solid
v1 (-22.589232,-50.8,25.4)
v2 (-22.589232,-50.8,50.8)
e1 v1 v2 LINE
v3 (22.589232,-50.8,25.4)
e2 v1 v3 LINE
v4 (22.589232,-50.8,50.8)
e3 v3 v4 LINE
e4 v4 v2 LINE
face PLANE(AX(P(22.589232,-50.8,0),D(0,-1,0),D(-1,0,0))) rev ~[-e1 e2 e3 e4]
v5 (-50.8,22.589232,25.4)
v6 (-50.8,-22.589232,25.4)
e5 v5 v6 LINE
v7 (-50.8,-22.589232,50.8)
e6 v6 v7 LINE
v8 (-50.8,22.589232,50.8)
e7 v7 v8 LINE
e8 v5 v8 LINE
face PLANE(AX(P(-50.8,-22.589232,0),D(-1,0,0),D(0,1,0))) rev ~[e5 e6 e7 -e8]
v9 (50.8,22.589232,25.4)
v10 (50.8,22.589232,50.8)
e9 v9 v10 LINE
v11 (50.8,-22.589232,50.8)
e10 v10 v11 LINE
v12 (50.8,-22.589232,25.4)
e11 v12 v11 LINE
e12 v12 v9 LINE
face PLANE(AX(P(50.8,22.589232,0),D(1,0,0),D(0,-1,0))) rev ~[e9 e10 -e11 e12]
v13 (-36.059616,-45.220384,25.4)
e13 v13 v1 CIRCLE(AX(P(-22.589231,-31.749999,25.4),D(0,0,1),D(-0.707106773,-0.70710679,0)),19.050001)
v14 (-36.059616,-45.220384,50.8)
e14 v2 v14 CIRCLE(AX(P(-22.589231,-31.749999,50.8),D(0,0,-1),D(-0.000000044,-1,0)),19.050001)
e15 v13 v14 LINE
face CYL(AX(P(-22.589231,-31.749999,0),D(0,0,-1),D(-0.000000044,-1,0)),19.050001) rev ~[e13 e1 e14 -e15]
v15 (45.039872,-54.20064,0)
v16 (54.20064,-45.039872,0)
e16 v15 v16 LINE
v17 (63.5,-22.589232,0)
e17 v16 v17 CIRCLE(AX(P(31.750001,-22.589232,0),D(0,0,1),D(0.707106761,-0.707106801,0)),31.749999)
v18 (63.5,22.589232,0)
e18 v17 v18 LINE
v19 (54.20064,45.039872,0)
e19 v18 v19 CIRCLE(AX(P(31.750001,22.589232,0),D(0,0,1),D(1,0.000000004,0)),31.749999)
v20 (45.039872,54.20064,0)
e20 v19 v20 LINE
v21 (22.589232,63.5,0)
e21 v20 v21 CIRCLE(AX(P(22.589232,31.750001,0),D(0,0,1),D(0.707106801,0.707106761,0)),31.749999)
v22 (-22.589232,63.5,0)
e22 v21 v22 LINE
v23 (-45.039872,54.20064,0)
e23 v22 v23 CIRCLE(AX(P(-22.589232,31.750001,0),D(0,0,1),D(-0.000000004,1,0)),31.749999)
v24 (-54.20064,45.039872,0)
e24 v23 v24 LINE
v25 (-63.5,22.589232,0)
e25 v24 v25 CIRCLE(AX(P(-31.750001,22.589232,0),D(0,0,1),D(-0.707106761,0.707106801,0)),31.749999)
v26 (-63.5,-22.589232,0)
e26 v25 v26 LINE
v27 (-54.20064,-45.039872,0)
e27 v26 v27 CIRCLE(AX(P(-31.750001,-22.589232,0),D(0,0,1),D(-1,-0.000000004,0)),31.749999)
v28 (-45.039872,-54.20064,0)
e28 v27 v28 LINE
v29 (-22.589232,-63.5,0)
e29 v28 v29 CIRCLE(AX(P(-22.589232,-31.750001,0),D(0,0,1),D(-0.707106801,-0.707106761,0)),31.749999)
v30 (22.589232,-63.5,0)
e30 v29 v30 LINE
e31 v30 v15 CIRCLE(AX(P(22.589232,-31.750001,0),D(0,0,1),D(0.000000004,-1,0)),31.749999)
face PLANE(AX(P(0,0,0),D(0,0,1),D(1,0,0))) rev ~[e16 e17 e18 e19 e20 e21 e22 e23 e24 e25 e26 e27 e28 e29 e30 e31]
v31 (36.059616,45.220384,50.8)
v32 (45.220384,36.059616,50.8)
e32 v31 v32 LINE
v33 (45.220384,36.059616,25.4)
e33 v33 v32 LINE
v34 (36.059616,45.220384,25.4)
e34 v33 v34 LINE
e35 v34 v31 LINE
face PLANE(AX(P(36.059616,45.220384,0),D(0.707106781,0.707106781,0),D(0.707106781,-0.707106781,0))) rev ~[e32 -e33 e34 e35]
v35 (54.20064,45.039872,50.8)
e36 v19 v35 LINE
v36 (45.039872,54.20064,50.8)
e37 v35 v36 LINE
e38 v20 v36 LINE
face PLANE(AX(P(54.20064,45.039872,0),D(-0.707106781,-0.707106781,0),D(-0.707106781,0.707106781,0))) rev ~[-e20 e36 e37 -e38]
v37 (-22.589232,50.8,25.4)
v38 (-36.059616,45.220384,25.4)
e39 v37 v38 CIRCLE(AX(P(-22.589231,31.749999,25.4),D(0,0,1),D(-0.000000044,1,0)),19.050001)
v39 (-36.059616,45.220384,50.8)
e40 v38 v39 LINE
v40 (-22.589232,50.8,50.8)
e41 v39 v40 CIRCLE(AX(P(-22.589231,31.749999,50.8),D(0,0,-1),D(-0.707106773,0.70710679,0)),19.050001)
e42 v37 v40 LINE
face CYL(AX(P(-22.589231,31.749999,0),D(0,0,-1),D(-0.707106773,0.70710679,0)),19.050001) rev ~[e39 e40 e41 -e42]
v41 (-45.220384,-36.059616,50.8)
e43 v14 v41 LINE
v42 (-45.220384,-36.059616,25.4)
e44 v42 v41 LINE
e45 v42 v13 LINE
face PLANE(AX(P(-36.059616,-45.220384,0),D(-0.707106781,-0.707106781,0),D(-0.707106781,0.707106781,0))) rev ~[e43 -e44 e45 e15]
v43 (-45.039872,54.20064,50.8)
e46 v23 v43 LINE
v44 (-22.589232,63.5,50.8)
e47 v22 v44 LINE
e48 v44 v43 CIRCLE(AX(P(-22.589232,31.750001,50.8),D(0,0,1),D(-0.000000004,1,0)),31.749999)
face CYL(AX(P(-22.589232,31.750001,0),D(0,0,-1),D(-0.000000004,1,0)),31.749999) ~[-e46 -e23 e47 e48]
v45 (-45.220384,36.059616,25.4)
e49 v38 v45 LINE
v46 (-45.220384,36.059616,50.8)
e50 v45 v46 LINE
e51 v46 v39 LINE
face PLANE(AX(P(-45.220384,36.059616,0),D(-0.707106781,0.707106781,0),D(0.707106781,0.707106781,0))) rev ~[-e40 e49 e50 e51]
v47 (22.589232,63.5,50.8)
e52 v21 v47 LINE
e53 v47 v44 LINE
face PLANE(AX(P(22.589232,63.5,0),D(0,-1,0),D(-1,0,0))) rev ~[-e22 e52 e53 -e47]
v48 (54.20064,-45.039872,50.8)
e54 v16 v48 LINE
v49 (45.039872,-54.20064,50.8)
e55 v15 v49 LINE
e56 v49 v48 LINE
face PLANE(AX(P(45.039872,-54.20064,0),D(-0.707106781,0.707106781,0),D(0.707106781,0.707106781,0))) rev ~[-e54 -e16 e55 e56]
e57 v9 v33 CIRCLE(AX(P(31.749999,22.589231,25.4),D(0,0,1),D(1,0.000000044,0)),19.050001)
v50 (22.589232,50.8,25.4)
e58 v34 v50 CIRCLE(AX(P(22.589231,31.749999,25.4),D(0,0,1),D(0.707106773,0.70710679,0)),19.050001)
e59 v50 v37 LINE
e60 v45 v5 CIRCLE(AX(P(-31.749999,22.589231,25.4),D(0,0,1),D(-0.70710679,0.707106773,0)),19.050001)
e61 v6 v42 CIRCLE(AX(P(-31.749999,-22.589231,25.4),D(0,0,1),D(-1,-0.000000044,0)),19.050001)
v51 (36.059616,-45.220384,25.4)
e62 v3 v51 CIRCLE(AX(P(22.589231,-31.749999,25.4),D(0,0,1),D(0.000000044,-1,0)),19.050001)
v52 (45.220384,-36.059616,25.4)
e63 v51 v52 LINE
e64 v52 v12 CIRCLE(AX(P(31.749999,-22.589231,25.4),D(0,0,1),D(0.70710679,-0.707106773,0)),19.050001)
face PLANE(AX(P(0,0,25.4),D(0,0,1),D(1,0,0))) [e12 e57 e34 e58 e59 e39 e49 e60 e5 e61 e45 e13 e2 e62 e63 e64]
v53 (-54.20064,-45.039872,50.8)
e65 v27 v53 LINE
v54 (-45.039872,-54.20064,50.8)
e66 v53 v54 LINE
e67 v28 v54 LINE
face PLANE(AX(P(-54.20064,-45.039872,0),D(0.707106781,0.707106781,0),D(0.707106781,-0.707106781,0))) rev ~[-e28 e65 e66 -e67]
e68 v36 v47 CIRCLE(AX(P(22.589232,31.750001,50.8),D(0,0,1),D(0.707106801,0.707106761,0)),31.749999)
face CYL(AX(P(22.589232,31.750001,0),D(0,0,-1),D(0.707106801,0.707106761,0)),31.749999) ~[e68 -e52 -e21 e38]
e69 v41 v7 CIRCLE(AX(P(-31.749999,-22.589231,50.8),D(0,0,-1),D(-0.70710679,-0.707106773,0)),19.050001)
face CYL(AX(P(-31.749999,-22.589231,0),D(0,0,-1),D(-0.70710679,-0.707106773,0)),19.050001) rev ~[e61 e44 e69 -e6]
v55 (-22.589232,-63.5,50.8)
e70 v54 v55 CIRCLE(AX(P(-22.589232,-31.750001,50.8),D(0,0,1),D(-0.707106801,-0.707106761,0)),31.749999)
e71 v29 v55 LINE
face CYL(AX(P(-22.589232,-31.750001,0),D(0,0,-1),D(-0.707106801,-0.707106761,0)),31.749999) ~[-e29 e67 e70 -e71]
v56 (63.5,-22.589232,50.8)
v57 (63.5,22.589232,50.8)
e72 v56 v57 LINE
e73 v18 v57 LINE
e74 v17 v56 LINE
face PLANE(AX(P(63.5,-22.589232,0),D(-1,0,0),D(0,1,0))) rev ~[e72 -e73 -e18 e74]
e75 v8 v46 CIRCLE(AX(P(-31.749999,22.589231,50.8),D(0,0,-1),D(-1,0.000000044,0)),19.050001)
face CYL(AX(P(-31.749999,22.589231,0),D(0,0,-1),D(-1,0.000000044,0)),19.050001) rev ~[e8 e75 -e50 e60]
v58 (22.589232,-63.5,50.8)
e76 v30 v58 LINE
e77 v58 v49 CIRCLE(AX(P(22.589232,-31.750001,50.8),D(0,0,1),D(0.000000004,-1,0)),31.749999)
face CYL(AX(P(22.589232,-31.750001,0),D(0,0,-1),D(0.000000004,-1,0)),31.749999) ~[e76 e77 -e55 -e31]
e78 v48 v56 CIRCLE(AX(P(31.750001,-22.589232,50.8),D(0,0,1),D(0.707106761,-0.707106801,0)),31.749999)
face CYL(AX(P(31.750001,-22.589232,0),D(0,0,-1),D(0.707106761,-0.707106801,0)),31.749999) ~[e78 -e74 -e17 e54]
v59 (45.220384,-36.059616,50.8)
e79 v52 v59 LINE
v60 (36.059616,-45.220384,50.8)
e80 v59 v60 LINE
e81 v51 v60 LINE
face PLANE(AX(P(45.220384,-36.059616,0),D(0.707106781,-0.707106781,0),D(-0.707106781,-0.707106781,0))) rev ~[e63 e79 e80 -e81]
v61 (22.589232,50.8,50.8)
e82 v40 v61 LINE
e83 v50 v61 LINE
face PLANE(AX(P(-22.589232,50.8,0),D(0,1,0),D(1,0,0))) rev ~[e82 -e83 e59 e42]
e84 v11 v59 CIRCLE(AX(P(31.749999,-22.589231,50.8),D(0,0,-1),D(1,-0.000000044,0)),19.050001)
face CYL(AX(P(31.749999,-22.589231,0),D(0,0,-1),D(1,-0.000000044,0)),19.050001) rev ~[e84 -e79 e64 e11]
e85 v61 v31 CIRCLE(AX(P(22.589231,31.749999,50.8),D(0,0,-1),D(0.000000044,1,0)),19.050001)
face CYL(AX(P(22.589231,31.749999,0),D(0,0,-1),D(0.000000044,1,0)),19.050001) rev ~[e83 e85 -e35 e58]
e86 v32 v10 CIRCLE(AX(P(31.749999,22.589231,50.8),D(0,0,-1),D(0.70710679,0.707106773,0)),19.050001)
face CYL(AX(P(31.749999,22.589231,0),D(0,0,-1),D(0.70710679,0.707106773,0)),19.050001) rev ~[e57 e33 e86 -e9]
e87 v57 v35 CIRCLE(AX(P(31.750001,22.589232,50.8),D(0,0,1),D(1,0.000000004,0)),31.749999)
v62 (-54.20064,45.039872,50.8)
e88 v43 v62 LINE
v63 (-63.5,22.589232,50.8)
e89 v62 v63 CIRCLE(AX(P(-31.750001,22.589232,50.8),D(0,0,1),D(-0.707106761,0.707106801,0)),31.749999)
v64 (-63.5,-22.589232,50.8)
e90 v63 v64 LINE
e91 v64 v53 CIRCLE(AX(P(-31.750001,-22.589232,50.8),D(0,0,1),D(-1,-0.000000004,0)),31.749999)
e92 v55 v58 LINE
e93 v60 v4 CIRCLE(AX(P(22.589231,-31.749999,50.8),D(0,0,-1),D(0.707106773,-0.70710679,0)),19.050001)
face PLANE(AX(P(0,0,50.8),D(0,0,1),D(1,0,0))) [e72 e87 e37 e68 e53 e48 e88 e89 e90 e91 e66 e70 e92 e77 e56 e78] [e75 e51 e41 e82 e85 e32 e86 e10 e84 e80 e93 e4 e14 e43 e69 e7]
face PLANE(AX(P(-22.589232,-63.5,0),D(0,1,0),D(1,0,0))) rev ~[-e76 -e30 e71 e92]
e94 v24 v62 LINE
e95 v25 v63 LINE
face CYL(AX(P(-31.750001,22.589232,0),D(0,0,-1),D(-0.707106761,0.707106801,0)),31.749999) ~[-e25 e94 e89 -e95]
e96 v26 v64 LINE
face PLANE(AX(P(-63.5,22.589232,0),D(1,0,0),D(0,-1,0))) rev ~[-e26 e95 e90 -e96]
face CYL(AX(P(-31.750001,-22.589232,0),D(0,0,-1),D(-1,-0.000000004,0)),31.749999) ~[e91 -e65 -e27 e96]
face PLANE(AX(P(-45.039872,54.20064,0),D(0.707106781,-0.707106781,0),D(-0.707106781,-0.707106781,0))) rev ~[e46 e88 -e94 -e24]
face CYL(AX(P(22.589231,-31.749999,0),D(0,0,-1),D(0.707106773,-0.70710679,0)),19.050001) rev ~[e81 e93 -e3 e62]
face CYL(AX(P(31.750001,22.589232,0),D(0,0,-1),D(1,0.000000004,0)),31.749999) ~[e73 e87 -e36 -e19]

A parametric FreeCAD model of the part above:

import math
import FreeCAD as App
import Part
import Sketcher
from FreeCAD import Vector
Q = App.Units.Quantity

doc = App.newDocument("Part")
body = doc.addObject("PartDesign::Body", "Body")

# Sketch on XY plane
sketch1 = body.newObject("Sketcher::SketchObject", "Sketch")
sketch1.AttachmentSupport = (doc.getObject("XY_Plane"), [""])
sketch1.MapMode = "FlatFace"
sketch1.addGeometry(Part.LineSegment(Vector(-23, -51, 0), Vector(23, -51, 0)), False)
sketch1.addGeometry(Part.ArcOfCircle(Part.Circle(Vector(23, -32, 0), Vector(0, 0, 1), 19), math.radians(-90), math.radians(-45)), False)
sketch1.addGeometry(Part.LineSegment(Vector(36, -45, 0), Vector(45, -36, 0)), False)
sketch1.addGeometry(Part.ArcOfCircle(Part.Circle(Vector(32, -23, 0), Vector(0, 0, 1), 19), math.radians(-45), math.radians(0)), False)
sketch1.addGeometry(Part.LineSegment(Vector(51, -23, 0), Vector(51, 23, 0)), False)
sketch1.addGeometry(Part.ArcOfCircle(Part.Circle(Vector(32, 23, 0), Vector(0, 0, 1), 19), math.radians(0), math.radians(45)), False)
sketch1.addGeometry(Part.LineSegment(Vector(45, 36, 0), Vector(36, 45, 0)), False)
sketch1.addGeometry(Part.ArcOfCircle(Part.Circle(Vector(23, 32, 0), Vector(0, 0, 1), 19), math.radians(45), math.radians(90)), False)
sketch1.addGeometry(Part.LineSegment(Vector(23, 51, 0), Vector(-23, 51, 0)), False)
sketch1.addGeometry(Part.ArcOfCircle(Part.Circle(Vector(-23, 32, 0), Vector(0, 0, 1), 19), math.radians(90), math.radians(135)), False)
sketch1.addGeometry(Part.LineSegment(Vector(-36, 45, 0), Vector(-45, 36, 0)), False)
sketch1.addGeometry(Part.ArcOfCircle(Part.Circle(Vector(-32, 23, 0), Vector(0, 0, 1), 19), math.radians(135), math.radians(180)), False)
sketch1.addGeometry(Part.LineSegment(Vector(-51, 23, 0), Vector(-51, -23, 0)), False)
sketch1.addGeometry(Part.ArcOfCircle(Part.Circle(Vector(-32, -23, 0), Vector(0, 0, 1), 19), math.radians(-180), math.radians(-135)), False)
sketch1.addGeometry(Part.LineSegment(Vector(-45, -36, 0), Vector(-36, -45, 0)), False)
sketch1.addGeometry(Part.ArcOfCircle(Part.Circle(Vector(-23, -32, 0), Vector(0, 0, 1), 19), math.radians(-135), math.radians(-90)), False)
sketch1.addConstraint(Sketcher.Constraint("Tangent", 0, 2, 1, 1))
sketch1.addConstraint(Sketcher.Constraint("Tangent", 1, 2, 2, 1))
sketch1.addConstraint(Sketcher.Constraint("Tangent", 2, 2, 3, 1))
sketch1.addConstraint(Sketcher.Constraint("Tangent", 3, 2, 4, 1))
sketch1.addConstraint(Sketcher.Constraint("Tangent", 4, 2, 5, 1))
sketch1.addConstraint(Sketcher.Constraint("Tangent", 5, 2, 6, 1))
sketch1.addConstraint(Sketcher.Constraint("Tangent", 6, 2, 7, 1))
sketch1.addConstraint(Sketcher.Constraint("Tangent", 7, 2, 8, 1))
sketch1.addConstraint(Sketcher.Constraint("Tangent", 8, 2, 9, 1))
sketch1.addConstraint(Sketcher.Constraint("Tangent", 9, 2, 10, 1))
sketch1.addConstraint(Sketcher.Constraint("Tangent", 10, 2, 11, 1))
sketch1.addConstraint(Sketcher.Constraint("Tangent", 11, 2, 12, 1))
sketch1.addConstraint(Sketcher.Constraint("Tangent", 12, 2, 13, 1))
sketch1.addConstraint(Sketcher.Constraint("Tangent", 13, 2, 14, 1))
sketch1.addConstraint(Sketcher.Constraint("Tangent", 14, 2, 15, 1))
sketch1.addConstraint(Sketcher.Constraint("Tangent", 15, 2, 0, 1))
sketch1.addConstraint(Sketcher.Constraint("Horizontal", 0))
sketch1.addConstraint(Sketcher.Constraint("Vertical", 4))
sketch1.addConstraint(Sketcher.Constraint("Horizontal", 8))
sketch1.addConstraint(Sketcher.Constraint("Vertical", 12))
sketch1.addConstraint(Sketcher.Constraint("Equal", 1, 3))
sketch1.addConstraint(Sketcher.Constraint("Equal", 3, 5))
sketch1.addConstraint(Sketcher.Constraint("Equal", 5, 7))
sketch1.addConstraint(Sketcher.Constraint("Equal", 7, 9))
sketch1.addConstraint(Sketcher.Constraint("Equal", 9, 11))
sketch1.addConstraint(Sketcher.Constraint("Equal", 11, 13))
sketch1.addConstraint(Sketcher.Constraint("Equal", 13, 15))
sketch1.addConstraint(Sketcher.Constraint("Symmetric", 1, 3, 9, 3, -1, 1))
sketch1.addConstraint(Sketcher.Constraint("Symmetric", 3, 3, 11, 3, -1, 1))
sketch1.addConstraint(Sketcher.Constraint("Symmetric", 5, 2, 13, 2, -1, 1))
sketch1.addConstraint(Sketcher.Constraint("Symmetric", 6, 2, 9, 2, -2))
sketch1.addConstraint(Sketcher.Constraint("Perpendicular", 2, 6))
sketch1.addConstraint(Sketcher.Constraint("Equal", 8, 4))
sketch1.addConstraint(Sketcher.Constraint("Radius", 1, Q("0.75 in")))
sketch1.addConstraint(Sketcher.Constraint("DistanceY", 0, 2, -1, 1, Q("2 in")))
sketch1.addConstraint(Sketcher.Constraint("DistanceX", 0, 1, 0, 2, 45.178464))
pad1 = body.newObject("PartDesign::Pad", "Pad")
pad1.Profile = sketch1
pad1.Length = Q("1 in")

# Sketch on XY plane
sketch2 = body.newObject("Sketcher::SketchObject", "Sketch001")
sketch2.AttachmentSupport = (doc.getObject("XY_Plane"), [""])
sketch2.MapMode = "FlatFace"
sketch2.addGeometry(Part.ArcOfCircle(Part.Circle(Vector(32, -23, 0), Vector(0, 0, 1), 32), math.radians(-45), math.radians(0)), False)
sketch2.addGeometry(Part.LineSegment(Vector(64, -23, 0), Vector(64, 23, 0)), False)
sketch2.addGeometry(Part.ArcOfCircle(Part.Circle(Vector(32, 23, 0), Vector(0, 0, 1), 32), math.radians(0), math.radians(45)), False)
sketch2.addGeometry(Part.LineSegment(Vector(54, 45, 0), Vector(45, 54, 0)), False)
sketch2.addGeometry(Part.ArcOfCircle(Part.Circle(Vector(23, 32, 0), Vector(0, 0, 1), 32), math.radians(45), math.radians(90)), False)
sketch2.addGeometry(Part.LineSegment(Vector(23, 64, 0), Vector(-23, 64, 0)), False)
sketch2.addGeometry(Part.ArcOfCircle(Part.Circle(Vector(-23, 32, 0), Vector(0, 0, 1), 32), math.radians(90), math.radians(135)), False)
sketch2.addGeometry(Part.LineSegment(Vector(-45, 54, 0), Vector(-54, 45, 0)), False)
sketch2.addGeometry(Part.ArcOfCircle(Part.Circle(Vector(-32, 23, 0), Vector(0, 0, 1), 32), math.radians(135), math.radians(180)), False)
sketch2.addGeometry(Part.LineSegment(Vector(-64, 23, 0), Vector(-64, -23, 0)), False)
sketch2.addGeometry(Part.ArcOfCircle(Part.Circle(Vector(-32, -23, 0), Vector(0, 0, 1), 32), math.radians(-180), math.radians(-135)), False)
sketch2.addGeometry(Part.LineSegment(Vector(-54, -45, 0), Vector(-45, -54, 0)), False)
sketch2.addGeometry(Part.ArcOfCircle(Part.Circle(Vector(-23, -32, 0), Vector(0, 0, 1), 32), math.radians(-135), math.radians(-90)), False)
sketch2.addGeometry(Part.LineSegment(Vector(-23, -64, 0), Vector(23, -64, 0)), False)
sketch2.addGeometry(Part.ArcOfCircle(Part.Circle(Vector(23, -32, 0), Vector(0, 0, 1), 32), math.radians(-90), math.radians(-45)), False)
sketch2.addGeometry(Part.LineSegment(Vector(45, -54, 0), Vector(54, -45, 0)), False)
sketch2.addGeometry(Part.ArcOfCircle(Part.Circle(Vector(23, -32, 0), Vector(0, 0, 1), 19), math.radians(-90), math.radians(-45)), False)
sketch2.addGeometry(Part.LineSegment(Vector(23, -51, 0), Vector(-23, -51, 0)), False)
sketch2.addGeometry(Part.ArcOfCircle(Part.Circle(Vector(-23, -32, 0), Vector(0, 0, 1), 19), math.radians(-135), math.radians(-90)), False)
sketch2.addGeometry(Part.LineSegment(Vector(-36, -45, 0), Vector(-45, -36, 0)), False)
sketch2.addGeometry(Part.ArcOfCircle(Part.Circle(Vector(-32, -23, 0), Vector(0, 0, 1), 19), math.radians(-180), math.radians(-135)), False)
sketch2.addGeometry(Part.LineSegment(Vector(-51, -23, 0), Vector(-51, 23, 0)), False)
sketch2.addGeometry(Part.ArcOfCircle(Part.Circle(Vector(-32, 23, 0), Vector(0, 0, 1), 19), math.radians(135), math.radians(180)), False)
sketch2.addGeometry(Part.LineSegment(Vector(-45, 36, 0), Vector(-36, 45, 0)), False)
sketch2.addGeometry(Part.ArcOfCircle(Part.Circle(Vector(-23, 32, 0), Vector(0, 0, 1), 19), math.radians(90), math.radians(135)), False)
sketch2.addGeometry(Part.LineSegment(Vector(-23, 51, 0), Vector(23, 51, 0)), False)
sketch2.addGeometry(Part.ArcOfCircle(Part.Circle(Vector(23, 32, 0), Vector(0, 0, 1), 19), math.radians(45), math.radians(90)), False)
sketch2.addGeometry(Part.LineSegment(Vector(36, 45, 0), Vector(45, 36, 0)), False)
sketch2.addGeometry(Part.ArcOfCircle(Part.Circle(Vector(32, 23, 0), Vector(0, 0, 1), 19), math.radians(0), math.radians(45)), False)
sketch2.addGeometry(Part.LineSegment(Vector(51, 23, 0), Vector(51, -23, 0)), False)
sketch2.addGeometry(Part.ArcOfCircle(Part.Circle(Vector(32, -23, 0), Vector(0, 0, 1), 19), math.radians(-45), math.radians(0)), False)
sketch2.addGeometry(Part.LineSegment(Vector(45, -36, 0), Vector(36, -45, 0)), False)
sketch2.addConstraint(Sketcher.Constraint("Tangent", 0, 2, 1, 1))
sketch2.addConstraint(Sketcher.Constraint("Tangent", 1, 2, 2, 1))
sketch2.addConstraint(Sketcher.Constraint("Tangent", 2, 2, 3, 1))
sketch2.addConstraint(Sketcher.Constraint("Tangent", 3, 2, 4, 1))
sketch2.addConstraint(Sketcher.Constraint("Tangent", 4, 2, 5, 1))
sketch2.addConstraint(Sketcher.Constraint("Tangent", 5, 2, 6, 1))
sketch2.addConstraint(Sketcher.Constraint("Tangent", 6, 2, 7, 1))
sketch2.addConstraint(Sketcher.Constraint("Tangent", 7, 2, 8, 1))
sketch2.addConstraint(Sketcher.Constraint("Tangent", 8, 2, 9, 1))
sketch2.addConstraint(Sketcher.Constraint("Tangent", 9, 2, 10, 1))
sketch2.addConstraint(Sketcher.Constraint("Tangent", 10, 2, 11, 1))
sketch2.addConstraint(Sketcher.Constraint("Tangent", 11, 2, 12, 1))
sketch2.addConstraint(Sketcher.Constraint("Tangent", 12, 2, 13, 1))
sketch2.addConstraint(Sketcher.Constraint("Tangent", 13, 2, 14, 1))
sketch2.addConstraint(Sketcher.Constraint("Tangent", 14, 2, 15, 1))
sketch2.addConstraint(Sketcher.Constraint("Tangent", 15, 2, 0, 1))
sketch2.addConstraint(Sketcher.Constraint("Tangent", 16, 1, 17, 1))
sketch2.addConstraint(Sketcher.Constraint("Tangent", 17, 2, 18, 2))
sketch2.addConstraint(Sketcher.Constraint("Tangent", 18, 1, 19, 1))
sketch2.addConstraint(Sketcher.Constraint("Tangent", 19, 2, 20, 2))
sketch2.addConstraint(Sketcher.Constraint("Tangent", 20, 1, 21, 1))
sketch2.addConstraint(Sketcher.Constraint("Tangent", 21, 2, 22, 2))
sketch2.addConstraint(Sketcher.Constraint("Tangent", 22, 1, 23, 1))
sketch2.addConstraint(Sketcher.Constraint("Tangent", 23, 2, 24, 2))
sketch2.addConstraint(Sketcher.Constraint("Tangent", 24, 1, 25, 1))
sketch2.addConstraint(Sketcher.Constraint("Tangent", 25, 2, 26, 2))
sketch2.addConstraint(Sketcher.Constraint("Tangent", 26, 1, 27, 1))
sketch2.addConstraint(Sketcher.Constraint("Tangent", 27, 2, 28, 2))
sketch2.addConstraint(Sketcher.Constraint("Tangent", 28, 1, 29, 1))
sketch2.addConstraint(Sketcher.Constraint("Tangent", 29, 2, 30, 2))
sketch2.addConstraint(Sketcher.Constraint("Tangent", 30, 1, 31, 1))
sketch2.addConstraint(Sketcher.Constraint("Tangent", 31, 2, 16, 2))
sketch2.addConstraint(Sketcher.Constraint("Vertical", 1))
sketch2.addConstraint(Sketcher.Constraint("Horizontal", 5))
sketch2.addConstraint(Sketcher.Constraint("Vertical", 9))
sketch2.addConstraint(Sketcher.Constraint("Horizontal", 13))
sketch2.addConstraint(Sketcher.Constraint("Horizontal", 17))
sketch2.addConstraint(Sketcher.Constraint("Vertical", 21))
sketch2.addConstraint(Sketcher.Constraint("Horizontal", 25))
sketch2.addConstraint(Sketcher.Constraint("Vertical", 29))
sketch2.addConstraint(Sketcher.Constraint("Coincident", 16, 3, 14, 3))
sketch2.addConstraint(Sketcher.Constraint("Coincident", 18, 3, 12, 3))
sketch2.addConstraint(Sketcher.Constraint("Coincident", 20, 3, 10, 3))
sketch2.addConstraint(Sketcher.Constraint("Coincident", 22, 3, 8, 3))
sketch2.addConstraint(Sketcher.Constraint("Coincident", 24, 3, 6, 3))
sketch2.addConstraint(Sketcher.Constraint("Coincident", 26, 3, 4, 3))
sketch2.addConstraint(Sketcher.Constraint("Coincident", 28, 3, 2, 3))
sketch2.addConstraint(Sketcher.Constraint("Coincident", 30, 3, 0, 3))
sketch2.addConstraint(Sketcher.Constraint("Equal", 0, 2))
sketch2.addConstraint(Sketcher.Constraint("Equal", 2, 4))
sketch2.addConstraint(Sketcher.Constraint("Equal", 4, 6))
sketch2.addConstraint(Sketcher.Constraint("Equal", 6, 8))
sketch2.addConstraint(Sketcher.Constraint("Equal", 8, 10))
sketch2.addConstraint(Sketcher.Constraint("Equal", 10, 12))
sketch2.addConstraint(Sketcher.Constraint("Equal", 12, 14))
sketch2.addConstraint(Sketcher.Constraint("Equal", 18, 20))
sketch2.addConstraint(Sketcher.Constraint("Equal", 22, 24))
sketch2.addConstraint(Sketcher.Constraint("Equal", 26, 28))
sketch2.addConstraint(Sketcher.Constraint("Symmetric", 0, 3, 8, 3, -1, 1))
sketch2.addConstraint(Sketcher.Constraint("Symmetric", 4, 3, 12, 3, -1, 1))
sketch2.addConstraint(Sketcher.Constraint("Symmetric", 3, 2, 6, 2, -2))
sketch2.addConstraint(Sketcher.Constraint("Symmetric", 11, 2, 14, 2, -2))
sketch2.addConstraint(Sketcher.Constraint("Perpendicular", 3, 7))
sketch2.addConstraint(Sketcher.Constraint("Equal", 25, 1))
sketch2.addConstraint(Sketcher.Constraint("Radius", 0, Q("1.25 in")))
sketch2.addConstraint(Sketcher.Constraint("Radius", 16, Q("0.75 in")))
sketch2.addConstraint(Sketcher.Constraint("DistanceY", 16, 1, -1, 1, Q("2 in")))
sketch2.addConstraint(Sketcher.Constraint("DistanceX", 5, 2, 5, 1, 45.178464))
pad2 = body.newObject("PartDesign::Pad", "Pad001")
pad2.Profile = sketch2
pad2.Length = Q("2 in")

doc.recompute()
